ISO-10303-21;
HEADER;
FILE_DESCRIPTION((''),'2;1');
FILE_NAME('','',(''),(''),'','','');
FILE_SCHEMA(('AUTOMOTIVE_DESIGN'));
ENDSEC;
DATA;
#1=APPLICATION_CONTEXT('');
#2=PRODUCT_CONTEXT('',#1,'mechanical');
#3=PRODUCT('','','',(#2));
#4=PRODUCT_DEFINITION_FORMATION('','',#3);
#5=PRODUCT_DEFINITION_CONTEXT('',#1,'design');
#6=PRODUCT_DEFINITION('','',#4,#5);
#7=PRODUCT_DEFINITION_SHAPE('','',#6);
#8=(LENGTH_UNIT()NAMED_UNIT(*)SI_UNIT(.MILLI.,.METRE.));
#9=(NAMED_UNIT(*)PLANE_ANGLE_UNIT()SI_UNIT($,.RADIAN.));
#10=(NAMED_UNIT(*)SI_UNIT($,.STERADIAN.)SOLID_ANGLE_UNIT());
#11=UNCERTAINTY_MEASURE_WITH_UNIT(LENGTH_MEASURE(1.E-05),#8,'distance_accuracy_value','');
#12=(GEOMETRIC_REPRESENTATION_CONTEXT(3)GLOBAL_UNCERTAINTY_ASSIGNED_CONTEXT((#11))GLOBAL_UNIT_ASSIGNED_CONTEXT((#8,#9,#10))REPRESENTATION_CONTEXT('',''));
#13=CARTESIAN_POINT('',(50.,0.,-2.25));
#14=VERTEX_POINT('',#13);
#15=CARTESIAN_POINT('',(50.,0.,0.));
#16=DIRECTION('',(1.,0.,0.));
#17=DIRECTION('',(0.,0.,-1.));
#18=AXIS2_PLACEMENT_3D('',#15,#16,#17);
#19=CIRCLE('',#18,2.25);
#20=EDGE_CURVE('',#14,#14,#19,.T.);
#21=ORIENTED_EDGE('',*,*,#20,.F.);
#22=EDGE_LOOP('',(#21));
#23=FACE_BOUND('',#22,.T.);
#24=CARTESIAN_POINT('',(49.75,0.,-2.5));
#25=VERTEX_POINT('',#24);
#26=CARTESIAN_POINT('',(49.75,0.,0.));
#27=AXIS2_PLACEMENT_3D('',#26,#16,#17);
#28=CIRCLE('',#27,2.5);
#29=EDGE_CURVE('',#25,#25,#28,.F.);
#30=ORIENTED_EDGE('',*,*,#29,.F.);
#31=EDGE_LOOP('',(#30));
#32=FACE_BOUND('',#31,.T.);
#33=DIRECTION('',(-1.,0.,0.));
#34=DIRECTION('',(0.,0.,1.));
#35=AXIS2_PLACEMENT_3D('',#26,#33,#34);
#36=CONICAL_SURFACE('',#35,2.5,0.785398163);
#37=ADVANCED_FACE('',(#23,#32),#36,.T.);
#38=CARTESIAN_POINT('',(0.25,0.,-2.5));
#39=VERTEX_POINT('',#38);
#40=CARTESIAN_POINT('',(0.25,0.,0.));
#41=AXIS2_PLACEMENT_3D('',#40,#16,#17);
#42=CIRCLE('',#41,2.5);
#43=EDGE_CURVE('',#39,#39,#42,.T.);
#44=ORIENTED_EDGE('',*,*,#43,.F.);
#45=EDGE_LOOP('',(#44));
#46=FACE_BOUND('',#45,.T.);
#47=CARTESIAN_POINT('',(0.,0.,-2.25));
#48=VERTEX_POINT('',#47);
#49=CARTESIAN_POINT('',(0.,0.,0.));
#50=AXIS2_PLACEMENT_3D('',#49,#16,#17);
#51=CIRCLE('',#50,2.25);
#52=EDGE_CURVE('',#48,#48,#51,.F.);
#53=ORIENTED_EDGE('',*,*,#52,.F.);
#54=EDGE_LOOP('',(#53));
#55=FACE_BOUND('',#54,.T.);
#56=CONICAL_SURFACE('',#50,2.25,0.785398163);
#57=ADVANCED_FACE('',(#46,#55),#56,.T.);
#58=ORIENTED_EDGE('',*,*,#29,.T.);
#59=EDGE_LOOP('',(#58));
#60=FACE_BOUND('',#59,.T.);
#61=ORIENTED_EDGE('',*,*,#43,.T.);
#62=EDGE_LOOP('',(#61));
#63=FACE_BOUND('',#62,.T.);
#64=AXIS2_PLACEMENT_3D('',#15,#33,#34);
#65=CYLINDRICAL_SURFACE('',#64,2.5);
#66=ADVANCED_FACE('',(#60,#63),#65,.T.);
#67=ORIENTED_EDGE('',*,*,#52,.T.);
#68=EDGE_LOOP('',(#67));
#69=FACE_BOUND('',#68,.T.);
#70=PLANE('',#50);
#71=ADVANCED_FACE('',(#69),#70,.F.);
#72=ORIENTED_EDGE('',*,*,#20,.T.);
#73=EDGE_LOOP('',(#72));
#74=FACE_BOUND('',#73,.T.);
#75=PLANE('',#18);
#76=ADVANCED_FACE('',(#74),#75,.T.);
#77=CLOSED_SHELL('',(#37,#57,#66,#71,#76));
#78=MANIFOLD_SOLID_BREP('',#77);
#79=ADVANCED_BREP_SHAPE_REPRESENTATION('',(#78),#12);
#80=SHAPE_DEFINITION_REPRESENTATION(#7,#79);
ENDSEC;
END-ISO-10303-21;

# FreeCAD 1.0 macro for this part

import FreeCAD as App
import Part
import Sketcher


def edges_at(feature, points):
    """Names of the edges that pass closest to the given points."""
    edges = feature.Shape.Edges
    near = lambda p: min(range(len(edges)), key=lambda i: edges[i].distToShape(Part.Vertex(*p))[0])
    return sorted({f"Edge{near(p) + 1}" for p in points})

doc = App.newDocument("Part")
body = doc.addObject("PartDesign::Body", "Body")

# Sketch on YZ plane
sketch1 = body.newObject("Sketcher::SketchObject", "Sketch")
sketch1.AttachmentSupport = (doc.getObject("YZ_Plane"), [""])
sketch1.MapMode = "FlatFace"
sketch1.addGeometry(Part.Circle(App.Vector(0, 0, 0), App.Vector(0, 0, 1), 2.5), False)
sketch1.addConstraint([
    Sketcher.Constraint("Coincident", 0, 3, -1, 1),
    Sketcher.Constraint("Diameter", 0, 5.0),
])
pad1 = body.newObject("PartDesign::Pad", "Pad")
pad1.Profile = sketch1
pad1.Length = 50
doc.recompute()

chamfer = body.newObject("PartDesign::Chamfer", "Chamfer")
chamfer.Base = (pad1, edges_at(pad1, [(0, 0, 2.5), (50, 0, 2.5)]))
chamfer.Size = 0.25

doc.recompute()
